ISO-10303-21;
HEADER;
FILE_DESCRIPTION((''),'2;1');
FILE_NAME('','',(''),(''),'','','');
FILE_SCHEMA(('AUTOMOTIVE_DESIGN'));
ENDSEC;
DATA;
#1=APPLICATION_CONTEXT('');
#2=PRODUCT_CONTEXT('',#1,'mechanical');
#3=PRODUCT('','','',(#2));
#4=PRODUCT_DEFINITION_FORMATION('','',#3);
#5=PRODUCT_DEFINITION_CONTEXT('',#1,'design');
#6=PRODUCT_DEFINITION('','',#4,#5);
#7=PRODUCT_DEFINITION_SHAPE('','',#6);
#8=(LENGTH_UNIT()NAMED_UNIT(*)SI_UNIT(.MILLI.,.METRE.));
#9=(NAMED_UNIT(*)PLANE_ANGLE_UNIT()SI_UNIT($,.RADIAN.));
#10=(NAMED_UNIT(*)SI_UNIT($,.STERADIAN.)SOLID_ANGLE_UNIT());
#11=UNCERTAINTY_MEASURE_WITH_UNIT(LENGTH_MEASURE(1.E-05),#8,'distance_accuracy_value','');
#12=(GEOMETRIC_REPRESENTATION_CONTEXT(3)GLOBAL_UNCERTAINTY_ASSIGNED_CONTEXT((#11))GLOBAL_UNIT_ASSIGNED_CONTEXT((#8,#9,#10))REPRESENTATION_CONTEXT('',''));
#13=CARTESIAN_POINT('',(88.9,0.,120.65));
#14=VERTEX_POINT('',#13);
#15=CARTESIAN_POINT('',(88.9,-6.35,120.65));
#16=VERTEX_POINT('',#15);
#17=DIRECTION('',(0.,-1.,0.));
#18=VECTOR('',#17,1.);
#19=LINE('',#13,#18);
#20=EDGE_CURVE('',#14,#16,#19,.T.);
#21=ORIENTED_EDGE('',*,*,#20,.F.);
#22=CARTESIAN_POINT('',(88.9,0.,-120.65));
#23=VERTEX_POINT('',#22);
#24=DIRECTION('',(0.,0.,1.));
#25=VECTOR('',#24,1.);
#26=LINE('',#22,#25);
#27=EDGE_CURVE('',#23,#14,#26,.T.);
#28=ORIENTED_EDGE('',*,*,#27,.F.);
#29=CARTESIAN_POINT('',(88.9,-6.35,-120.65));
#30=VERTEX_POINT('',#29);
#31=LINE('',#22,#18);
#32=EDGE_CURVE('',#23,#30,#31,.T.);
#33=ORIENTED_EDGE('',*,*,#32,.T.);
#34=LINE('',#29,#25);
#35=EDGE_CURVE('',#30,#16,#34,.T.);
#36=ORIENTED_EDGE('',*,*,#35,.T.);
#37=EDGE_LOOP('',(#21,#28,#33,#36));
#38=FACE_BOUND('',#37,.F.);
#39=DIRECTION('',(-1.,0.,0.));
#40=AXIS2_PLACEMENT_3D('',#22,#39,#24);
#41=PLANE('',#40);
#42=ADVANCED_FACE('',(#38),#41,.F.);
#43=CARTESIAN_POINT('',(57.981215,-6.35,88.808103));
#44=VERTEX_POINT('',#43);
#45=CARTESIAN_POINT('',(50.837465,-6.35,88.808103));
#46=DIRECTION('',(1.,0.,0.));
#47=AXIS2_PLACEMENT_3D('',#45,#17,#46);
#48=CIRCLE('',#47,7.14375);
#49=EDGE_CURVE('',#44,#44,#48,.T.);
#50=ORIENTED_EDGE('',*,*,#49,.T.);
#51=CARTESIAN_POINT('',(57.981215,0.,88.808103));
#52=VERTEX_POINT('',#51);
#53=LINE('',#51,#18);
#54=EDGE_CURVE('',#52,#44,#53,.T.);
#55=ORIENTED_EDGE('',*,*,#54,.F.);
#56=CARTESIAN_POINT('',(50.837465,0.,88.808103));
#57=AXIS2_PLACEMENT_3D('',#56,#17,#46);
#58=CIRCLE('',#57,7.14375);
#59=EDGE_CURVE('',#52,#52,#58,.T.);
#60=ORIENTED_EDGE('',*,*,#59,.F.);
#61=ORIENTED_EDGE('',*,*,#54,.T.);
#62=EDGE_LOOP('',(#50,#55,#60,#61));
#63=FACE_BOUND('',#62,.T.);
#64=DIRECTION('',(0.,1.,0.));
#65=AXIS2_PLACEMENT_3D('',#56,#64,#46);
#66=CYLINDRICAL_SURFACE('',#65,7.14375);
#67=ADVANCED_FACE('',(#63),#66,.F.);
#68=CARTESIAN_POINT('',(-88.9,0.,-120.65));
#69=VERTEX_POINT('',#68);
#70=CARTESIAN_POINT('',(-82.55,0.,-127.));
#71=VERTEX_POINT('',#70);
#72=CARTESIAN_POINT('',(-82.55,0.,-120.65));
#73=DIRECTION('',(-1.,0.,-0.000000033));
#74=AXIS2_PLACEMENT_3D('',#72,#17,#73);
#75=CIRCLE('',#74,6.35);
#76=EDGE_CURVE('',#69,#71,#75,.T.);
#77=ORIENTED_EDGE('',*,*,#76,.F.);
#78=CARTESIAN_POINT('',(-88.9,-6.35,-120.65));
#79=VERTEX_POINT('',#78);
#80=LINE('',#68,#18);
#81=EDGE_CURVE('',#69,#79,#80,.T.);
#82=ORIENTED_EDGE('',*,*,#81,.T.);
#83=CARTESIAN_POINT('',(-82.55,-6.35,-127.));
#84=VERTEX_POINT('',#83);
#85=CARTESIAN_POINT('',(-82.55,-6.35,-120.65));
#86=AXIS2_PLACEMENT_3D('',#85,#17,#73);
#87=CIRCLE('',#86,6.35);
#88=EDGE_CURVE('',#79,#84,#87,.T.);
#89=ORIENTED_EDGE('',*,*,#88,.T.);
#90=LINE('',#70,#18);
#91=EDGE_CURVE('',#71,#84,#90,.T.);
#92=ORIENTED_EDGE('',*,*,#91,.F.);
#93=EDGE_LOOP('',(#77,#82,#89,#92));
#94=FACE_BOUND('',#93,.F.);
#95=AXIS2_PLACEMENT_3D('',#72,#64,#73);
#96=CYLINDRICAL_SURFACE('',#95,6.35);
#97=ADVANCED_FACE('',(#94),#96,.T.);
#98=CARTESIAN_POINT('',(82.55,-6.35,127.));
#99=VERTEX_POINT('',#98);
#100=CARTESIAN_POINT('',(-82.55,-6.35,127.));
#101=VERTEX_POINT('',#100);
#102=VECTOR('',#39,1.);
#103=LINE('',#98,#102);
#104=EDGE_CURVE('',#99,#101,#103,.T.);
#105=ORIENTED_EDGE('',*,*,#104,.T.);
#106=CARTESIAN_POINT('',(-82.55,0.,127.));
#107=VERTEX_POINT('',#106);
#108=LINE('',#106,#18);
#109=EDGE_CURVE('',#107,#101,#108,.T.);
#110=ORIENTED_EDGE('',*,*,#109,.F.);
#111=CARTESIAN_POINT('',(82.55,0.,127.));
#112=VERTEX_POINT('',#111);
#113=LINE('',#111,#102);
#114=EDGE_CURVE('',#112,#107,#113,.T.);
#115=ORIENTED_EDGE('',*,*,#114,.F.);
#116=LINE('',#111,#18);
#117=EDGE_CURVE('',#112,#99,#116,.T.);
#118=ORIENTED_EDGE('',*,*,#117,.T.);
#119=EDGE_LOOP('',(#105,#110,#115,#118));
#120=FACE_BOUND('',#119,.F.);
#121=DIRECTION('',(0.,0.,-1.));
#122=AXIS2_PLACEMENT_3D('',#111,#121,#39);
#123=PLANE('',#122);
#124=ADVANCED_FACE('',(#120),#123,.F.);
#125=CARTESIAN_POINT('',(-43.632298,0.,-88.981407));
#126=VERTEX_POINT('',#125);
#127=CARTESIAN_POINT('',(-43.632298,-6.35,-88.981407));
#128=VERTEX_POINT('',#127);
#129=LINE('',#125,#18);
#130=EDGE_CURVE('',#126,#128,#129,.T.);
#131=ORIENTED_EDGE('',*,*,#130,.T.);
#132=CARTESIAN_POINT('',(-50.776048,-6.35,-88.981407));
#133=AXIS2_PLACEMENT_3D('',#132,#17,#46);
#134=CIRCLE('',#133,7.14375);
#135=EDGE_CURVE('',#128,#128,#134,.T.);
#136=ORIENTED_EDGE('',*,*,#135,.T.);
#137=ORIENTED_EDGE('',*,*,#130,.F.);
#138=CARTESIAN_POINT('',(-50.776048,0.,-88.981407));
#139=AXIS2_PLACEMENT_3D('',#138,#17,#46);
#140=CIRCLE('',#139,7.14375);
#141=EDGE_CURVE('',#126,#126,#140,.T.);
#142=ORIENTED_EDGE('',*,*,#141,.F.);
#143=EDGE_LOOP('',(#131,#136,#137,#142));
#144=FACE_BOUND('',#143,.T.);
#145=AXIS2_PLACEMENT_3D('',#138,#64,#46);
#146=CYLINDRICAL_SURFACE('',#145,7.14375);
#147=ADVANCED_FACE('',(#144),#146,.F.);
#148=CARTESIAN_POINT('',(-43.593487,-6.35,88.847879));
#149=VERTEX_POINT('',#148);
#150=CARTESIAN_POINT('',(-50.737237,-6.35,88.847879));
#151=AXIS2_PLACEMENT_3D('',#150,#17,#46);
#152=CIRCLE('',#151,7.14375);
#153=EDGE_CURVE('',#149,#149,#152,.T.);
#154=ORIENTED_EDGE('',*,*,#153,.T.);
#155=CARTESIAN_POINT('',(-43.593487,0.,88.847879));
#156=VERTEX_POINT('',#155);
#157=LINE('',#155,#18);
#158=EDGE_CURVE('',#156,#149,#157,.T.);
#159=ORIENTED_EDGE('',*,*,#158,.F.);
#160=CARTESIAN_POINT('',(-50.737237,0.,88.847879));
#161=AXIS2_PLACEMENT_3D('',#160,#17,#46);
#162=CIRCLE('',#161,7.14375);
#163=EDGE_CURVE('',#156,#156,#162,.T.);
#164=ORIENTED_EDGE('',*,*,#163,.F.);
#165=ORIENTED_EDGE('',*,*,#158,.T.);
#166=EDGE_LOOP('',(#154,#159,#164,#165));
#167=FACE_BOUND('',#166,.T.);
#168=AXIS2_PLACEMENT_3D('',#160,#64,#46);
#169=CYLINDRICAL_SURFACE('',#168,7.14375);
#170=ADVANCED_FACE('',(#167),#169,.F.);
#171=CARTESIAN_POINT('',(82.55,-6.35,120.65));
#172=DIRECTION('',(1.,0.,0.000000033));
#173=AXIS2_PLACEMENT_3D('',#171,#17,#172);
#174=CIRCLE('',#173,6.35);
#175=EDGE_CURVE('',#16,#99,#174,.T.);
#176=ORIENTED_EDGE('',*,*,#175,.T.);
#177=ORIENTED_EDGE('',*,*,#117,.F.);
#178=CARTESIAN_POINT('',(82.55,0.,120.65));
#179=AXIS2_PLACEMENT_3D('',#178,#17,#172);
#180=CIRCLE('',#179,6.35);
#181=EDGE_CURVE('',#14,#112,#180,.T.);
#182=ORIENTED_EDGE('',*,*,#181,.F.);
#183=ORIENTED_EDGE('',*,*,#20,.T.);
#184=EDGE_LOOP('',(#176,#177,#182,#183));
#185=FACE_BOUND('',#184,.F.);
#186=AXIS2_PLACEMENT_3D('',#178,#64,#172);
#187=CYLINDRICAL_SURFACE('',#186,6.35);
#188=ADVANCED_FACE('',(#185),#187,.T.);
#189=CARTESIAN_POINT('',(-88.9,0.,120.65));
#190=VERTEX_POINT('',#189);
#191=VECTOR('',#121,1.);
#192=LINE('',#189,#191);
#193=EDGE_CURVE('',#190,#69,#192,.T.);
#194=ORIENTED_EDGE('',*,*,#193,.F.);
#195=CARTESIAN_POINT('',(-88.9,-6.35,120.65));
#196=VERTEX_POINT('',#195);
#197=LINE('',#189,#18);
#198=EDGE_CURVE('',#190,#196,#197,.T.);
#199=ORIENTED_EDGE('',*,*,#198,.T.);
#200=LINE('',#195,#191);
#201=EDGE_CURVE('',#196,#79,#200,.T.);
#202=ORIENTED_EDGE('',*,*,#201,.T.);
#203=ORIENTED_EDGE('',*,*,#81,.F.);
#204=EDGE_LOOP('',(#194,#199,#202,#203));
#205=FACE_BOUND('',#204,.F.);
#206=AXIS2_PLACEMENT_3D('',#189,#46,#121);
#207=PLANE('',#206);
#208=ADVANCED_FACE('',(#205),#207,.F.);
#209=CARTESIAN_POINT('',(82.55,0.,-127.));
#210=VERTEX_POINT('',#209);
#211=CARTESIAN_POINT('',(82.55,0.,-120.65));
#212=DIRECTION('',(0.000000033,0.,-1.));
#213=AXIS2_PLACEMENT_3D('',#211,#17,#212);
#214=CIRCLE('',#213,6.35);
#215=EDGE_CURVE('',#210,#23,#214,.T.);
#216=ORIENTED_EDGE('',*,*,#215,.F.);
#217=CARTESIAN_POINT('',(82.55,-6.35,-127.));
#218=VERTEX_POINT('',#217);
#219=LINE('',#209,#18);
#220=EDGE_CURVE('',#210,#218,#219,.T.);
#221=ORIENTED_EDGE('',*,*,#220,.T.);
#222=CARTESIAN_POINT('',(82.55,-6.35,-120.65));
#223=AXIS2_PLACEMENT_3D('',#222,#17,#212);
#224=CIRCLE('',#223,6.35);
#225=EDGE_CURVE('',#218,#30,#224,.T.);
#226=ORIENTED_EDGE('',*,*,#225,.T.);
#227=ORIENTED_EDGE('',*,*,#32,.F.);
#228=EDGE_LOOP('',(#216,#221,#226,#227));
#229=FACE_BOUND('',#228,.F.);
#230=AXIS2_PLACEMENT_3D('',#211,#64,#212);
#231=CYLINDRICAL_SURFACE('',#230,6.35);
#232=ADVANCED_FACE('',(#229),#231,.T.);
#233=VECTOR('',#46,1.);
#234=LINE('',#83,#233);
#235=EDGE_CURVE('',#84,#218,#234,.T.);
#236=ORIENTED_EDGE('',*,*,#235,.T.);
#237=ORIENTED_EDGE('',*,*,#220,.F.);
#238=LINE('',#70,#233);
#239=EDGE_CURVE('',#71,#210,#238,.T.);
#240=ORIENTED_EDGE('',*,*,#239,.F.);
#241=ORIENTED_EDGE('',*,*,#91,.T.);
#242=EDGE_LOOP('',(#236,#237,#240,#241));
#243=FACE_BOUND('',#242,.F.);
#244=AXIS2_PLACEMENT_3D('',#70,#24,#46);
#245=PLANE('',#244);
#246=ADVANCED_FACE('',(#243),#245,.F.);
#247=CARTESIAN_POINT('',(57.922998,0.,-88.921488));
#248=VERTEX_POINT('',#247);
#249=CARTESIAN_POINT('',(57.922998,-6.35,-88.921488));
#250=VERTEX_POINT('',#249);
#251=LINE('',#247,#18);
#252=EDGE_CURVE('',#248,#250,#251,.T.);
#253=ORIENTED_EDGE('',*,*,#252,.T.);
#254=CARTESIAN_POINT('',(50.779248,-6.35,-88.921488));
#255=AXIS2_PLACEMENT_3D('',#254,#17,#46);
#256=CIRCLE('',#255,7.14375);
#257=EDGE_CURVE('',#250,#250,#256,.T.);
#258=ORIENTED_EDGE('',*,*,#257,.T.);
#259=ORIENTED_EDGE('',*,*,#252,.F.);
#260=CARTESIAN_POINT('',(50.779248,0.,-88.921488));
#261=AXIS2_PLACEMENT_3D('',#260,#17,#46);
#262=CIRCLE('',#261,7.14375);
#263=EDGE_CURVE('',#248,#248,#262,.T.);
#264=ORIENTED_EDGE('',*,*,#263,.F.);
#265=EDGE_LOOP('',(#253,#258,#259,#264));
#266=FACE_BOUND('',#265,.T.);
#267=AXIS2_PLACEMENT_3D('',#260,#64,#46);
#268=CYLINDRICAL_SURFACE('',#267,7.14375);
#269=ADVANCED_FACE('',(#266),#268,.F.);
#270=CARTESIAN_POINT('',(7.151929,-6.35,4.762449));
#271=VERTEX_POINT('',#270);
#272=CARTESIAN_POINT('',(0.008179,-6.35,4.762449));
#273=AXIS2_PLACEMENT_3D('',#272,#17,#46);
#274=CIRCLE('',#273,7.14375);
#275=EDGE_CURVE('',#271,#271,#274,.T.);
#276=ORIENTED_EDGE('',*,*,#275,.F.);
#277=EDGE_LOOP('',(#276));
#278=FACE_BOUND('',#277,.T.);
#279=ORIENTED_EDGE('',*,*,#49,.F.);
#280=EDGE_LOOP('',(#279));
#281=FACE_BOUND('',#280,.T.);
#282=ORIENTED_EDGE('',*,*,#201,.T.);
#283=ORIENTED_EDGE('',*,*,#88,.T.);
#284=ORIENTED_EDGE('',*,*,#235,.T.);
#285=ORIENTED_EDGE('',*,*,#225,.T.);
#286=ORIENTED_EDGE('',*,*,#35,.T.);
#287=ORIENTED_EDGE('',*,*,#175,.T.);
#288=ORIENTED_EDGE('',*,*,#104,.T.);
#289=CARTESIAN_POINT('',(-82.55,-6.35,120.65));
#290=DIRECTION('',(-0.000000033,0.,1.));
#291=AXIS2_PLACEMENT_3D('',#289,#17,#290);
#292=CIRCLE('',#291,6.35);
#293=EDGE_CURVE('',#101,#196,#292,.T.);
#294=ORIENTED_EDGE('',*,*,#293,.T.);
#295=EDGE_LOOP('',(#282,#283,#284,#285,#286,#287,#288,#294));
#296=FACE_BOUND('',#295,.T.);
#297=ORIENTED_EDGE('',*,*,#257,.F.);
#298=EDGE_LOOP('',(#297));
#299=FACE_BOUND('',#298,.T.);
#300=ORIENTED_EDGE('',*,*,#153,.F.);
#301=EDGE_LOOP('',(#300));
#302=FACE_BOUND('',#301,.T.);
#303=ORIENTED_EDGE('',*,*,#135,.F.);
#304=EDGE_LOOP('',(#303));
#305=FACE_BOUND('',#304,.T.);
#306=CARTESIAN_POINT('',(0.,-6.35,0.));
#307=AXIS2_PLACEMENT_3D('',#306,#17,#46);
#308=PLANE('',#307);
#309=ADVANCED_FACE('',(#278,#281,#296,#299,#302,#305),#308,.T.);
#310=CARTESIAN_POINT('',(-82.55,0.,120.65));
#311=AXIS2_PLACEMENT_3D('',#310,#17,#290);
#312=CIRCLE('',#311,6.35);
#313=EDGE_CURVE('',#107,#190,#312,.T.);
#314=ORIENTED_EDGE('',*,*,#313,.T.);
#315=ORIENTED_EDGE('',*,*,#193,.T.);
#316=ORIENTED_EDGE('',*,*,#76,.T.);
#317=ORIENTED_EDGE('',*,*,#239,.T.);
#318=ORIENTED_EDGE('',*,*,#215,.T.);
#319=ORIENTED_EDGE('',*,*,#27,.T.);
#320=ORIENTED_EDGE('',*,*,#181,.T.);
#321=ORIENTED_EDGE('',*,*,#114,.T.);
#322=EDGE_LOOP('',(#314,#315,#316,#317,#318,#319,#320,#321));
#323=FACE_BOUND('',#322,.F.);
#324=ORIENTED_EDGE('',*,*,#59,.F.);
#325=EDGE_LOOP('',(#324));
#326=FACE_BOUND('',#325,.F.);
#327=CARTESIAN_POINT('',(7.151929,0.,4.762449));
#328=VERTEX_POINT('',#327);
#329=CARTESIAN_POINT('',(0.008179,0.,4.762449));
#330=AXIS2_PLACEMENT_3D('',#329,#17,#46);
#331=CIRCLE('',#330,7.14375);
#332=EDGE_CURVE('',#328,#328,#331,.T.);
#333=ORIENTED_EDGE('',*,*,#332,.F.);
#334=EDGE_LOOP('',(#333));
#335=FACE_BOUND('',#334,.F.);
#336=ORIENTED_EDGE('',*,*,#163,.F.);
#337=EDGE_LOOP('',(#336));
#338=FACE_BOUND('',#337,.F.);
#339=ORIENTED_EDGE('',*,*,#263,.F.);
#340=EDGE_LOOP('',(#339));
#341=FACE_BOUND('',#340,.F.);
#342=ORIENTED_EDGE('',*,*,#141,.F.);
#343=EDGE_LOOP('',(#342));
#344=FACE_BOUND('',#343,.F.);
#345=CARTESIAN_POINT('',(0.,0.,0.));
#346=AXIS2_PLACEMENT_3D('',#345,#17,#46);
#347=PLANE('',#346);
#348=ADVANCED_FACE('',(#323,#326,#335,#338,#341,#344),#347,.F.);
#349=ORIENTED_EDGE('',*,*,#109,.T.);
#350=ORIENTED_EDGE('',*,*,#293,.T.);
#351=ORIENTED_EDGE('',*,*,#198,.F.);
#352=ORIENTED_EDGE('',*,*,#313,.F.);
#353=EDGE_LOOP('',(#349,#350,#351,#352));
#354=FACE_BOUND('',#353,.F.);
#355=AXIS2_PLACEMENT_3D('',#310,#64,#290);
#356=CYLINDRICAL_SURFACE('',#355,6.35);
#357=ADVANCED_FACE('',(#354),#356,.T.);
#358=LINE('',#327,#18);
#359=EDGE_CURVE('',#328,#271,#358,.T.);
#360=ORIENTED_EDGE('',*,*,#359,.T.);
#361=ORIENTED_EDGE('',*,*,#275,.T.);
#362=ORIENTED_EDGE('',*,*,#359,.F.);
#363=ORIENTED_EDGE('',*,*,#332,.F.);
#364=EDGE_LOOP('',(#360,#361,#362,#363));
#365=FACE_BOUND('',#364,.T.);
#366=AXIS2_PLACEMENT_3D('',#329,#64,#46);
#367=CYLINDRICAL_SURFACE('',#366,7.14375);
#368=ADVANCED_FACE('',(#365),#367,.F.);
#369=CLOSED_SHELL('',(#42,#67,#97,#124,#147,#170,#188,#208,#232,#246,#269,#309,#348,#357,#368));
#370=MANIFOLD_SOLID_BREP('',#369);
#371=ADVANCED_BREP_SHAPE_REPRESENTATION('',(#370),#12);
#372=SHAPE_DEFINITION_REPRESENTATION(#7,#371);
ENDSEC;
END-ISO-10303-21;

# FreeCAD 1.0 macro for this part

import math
import FreeCAD as App
import Part
import Sketcher
Q = App.Units.Quantity

doc = App.newDocument("Part")
body = doc.addObject("PartDesign::Body", "Body")

# Sketch on XZ plane
sketch1 = body.newObject("Sketcher::SketchObject", "Sketch")
sketch1.AttachmentSupport = (doc.getObject("XZ_Plane"), [""])
sketch1.MapMode = "FlatFace"
sketch1.addGeometry([
    Part.ArcOfCircle(Part.Circle(App.Vector(82.55, 120.65, 0), App.Vector(0, 0, 1), 6.35), math.radians(0.000002), math.radians(89.999998)),  # 0
    Part.LineSegment(App.Vector(82.55, 127, 0), App.Vector(-82.55, 127, 0)),  # 1
    Part.ArcOfCircle(Part.Circle(App.Vector(-82.55, 120.65, 0), App.Vector(0, 0, 1), 6.35), math.radians(90.000002), math.radians(179.999998)),  # 2
    Part.LineSegment(App.Vector(-88.9, 120.65, 0), App.Vector(-88.9, -120.65, 0)),  # 3
    Part.ArcOfCircle(Part.Circle(App.Vector(-82.55, -120.65, 0), App.Vector(0, 0, 1), 6.35), math.radians(-179.999998), math.radians(-90.000002)),  # 4
    Part.LineSegment(App.Vector(-82.55, -127, 0), App.Vector(82.55, -127, 0)),  # 5
    Part.ArcOfCircle(Part.Circle(App.Vector(82.55, -120.65, 0), App.Vector(0, 0, 1), 6.35), math.radians(-89.999998), math.radians(-0.000002)),  # 6
    Part.LineSegment(App.Vector(88.9, -120.65, 0), App.Vector(88.9, 120.65, 0)),  # 7
    Part.Circle(App.Vector(-50.776048, -88.981407, 0), App.Vector(0, 0, 1), 7.14375),  # 8
    Part.Circle(App.Vector(50.779248, -88.921488, 0), App.Vector(0, 0, 1), 7.14375),  # 9
    Part.Circle(App.Vector(0.008179, 4.762449, 0), App.Vector(0, 0, 1), 7.14375),  # 10
    Part.Circle(App.Vector(-50.737237, 88.847879, 0), App.Vector(0, 0, 1), 7.14375),  # 11
    Part.Circle(App.Vector(50.837465, 88.808103, 0), App.Vector(0, 0, 1), 7.14375),  # 12
], False)
sketch1.addConstraint([
    Sketcher.Constraint("Tangent", 0, 2, 1, 1),
    Sketcher.Constraint("Tangent", 1, 2, 2, 1),
    Sketcher.Constraint("Tangent", 2, 2, 3, 1),
    Sketcher.Constraint("Tangent", 3, 2, 4, 1),
    Sketcher.Constraint("Tangent", 4, 2, 5, 1),
    Sketcher.Constraint("Tangent", 5, 2, 6, 1),
    Sketcher.Constraint("Tangent", 6, 2, 7, 1),
    Sketcher.Constraint("Tangent", 7, 2, 0, 1),
    Sketcher.Constraint("Horizontal", 1),
    Sketcher.Constraint("Vertical", 3),
    Sketcher.Constraint("Horizontal", 5),
    Sketcher.Constraint("Vertical", 7),
    Sketcher.Constraint("Equal", 0, 2),
    Sketcher.Constraint("Equal", 2, 4),
    Sketcher.Constraint("Equal", 4, 6),
    Sketcher.Constraint("Equal", 8, 9),
    Sketcher.Constraint("Equal", 9, 10),
    Sketcher.Constraint("Equal", 10, 11),
    Sketcher.Constraint("Equal", 11, 12),
    Sketcher.Constraint("Symmetric", 0, 3, 4, 3, -1, 1),
    Sketcher.Constraint("Radius", 0, Q("0.25 in")),
    Sketcher.Constraint("Diameter", 8, Q("0.5625 in")),
    Sketcher.Constraint("DistanceX", 1, 2, 1, 1, Q("6.5 in")),
    Sketcher.Constraint("DistanceY", 3, 2, 3, 1, Q("9.5 in")),
    Sketcher.Constraint("DistanceX", 11, 3, 12, 3, Q("101.574702 mm")),
    Sketcher.Constraint("DistanceX", 8, 3, -1, 1, Q("50.776048 mm")),
    Sketcher.Constraint("DistanceX", -1, 1, 9, 3, Q("50.779248 mm")),
    Sketcher.Constraint("DistanceX", -1, 1, 10, 3, Q("0.008179 mm")),
    Sketcher.Constraint("DistanceY", -1, 1, 10, 3, Q("4.762449 mm")),
    Sketcher.Constraint("DistanceY", -1, 1, 11, 3, Q("88.847879 mm")),
    Sketcher.Constraint("DistanceY", 6, 3, 9, 3, Q("31.728512 mm")),
    Sketcher.Constraint("DistanceY", 8, 3, 9, 3, Q("0.059919 mm")),
    Sketcher.Constraint("DistanceX", 8, 3, 11, 3, Q("0.038811 mm")),
    Sketcher.Constraint("DistanceY", 9, 3, 12, 3, Q("177.729591 mm")),
])
pad1 = body.newObject("PartDesign::Pad", "Pad")
pad1.Profile = sketch1
pad1.Length = Q("0.25 in")

doc.recompute()
